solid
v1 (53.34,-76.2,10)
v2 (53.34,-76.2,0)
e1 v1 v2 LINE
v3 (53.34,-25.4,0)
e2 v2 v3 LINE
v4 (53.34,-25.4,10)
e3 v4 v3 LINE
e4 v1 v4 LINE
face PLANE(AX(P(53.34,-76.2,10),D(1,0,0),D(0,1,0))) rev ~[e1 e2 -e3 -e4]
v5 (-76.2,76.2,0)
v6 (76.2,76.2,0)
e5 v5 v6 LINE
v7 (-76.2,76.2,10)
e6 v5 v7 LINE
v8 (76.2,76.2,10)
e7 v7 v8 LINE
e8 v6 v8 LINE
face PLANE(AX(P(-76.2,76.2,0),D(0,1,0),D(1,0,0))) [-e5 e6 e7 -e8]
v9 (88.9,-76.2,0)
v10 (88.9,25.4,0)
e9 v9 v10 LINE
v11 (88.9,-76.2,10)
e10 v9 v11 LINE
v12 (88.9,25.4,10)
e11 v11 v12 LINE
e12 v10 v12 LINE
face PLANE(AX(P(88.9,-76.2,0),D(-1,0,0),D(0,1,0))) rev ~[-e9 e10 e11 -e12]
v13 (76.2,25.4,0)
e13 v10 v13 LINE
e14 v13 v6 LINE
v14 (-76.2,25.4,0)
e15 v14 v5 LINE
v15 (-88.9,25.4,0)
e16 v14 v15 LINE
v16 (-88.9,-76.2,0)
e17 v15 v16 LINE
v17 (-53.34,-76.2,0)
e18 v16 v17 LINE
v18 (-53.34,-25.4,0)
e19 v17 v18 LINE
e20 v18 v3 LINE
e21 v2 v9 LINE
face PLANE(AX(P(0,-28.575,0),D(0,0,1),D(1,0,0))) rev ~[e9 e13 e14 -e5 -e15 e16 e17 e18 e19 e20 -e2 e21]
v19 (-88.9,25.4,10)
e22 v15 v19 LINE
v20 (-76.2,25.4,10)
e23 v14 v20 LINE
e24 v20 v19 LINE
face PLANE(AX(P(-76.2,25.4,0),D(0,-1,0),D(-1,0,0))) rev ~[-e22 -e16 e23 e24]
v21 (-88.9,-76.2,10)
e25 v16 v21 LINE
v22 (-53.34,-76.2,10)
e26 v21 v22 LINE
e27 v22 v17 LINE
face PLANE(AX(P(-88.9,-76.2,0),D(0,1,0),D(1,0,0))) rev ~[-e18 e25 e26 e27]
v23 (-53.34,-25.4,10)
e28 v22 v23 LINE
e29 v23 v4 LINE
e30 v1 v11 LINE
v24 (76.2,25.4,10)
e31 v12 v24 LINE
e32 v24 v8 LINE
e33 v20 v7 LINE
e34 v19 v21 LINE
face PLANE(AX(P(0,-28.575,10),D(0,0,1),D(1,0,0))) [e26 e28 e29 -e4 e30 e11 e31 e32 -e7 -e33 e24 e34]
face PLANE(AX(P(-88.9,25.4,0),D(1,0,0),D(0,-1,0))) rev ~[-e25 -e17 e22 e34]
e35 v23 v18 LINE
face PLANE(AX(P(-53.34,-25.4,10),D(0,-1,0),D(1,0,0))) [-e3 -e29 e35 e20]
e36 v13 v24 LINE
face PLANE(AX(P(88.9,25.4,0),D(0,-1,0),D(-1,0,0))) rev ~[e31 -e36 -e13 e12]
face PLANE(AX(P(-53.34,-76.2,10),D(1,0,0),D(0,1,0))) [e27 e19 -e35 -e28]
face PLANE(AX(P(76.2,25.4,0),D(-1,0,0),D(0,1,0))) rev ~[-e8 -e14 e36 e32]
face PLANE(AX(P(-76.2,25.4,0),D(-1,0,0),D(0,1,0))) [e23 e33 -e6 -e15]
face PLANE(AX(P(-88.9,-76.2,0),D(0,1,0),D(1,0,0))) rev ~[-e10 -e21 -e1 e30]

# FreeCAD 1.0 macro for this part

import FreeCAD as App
import Part
import Sketcher

V = App.Vector
Q = App.Units.Quantity

doc = App.newDocument("Part")
body = doc.addObject("PartDesign::Body", "Body")

# Sketch on XY plane
sketch1 = body.newObject("Sketcher::SketchObject", "Sketch")
sketch1.AttachmentSupport = (doc.getObject("XY_Plane"), [""])
sketch1.MapMode = "FlatFace"
sketch1.addGeometry([
    Part.LineSegment(V(89, -76, 0), V(89, 25, 0)),  # 0
    Part.LineSegment(V(89, 25, 0), V(76, 25, 0)),  # 1
    Part.LineSegment(V(76, 25, 0), V(76, 76, 0)),  # 2
    Part.LineSegment(V(76, 76, 0), V(-76, 76, 0)),  # 3
    Part.LineSegment(V(-76, 76, 0), V(-76, 25, 0)),  # 4
    Part.LineSegment(V(-76, 25, 0), V(-89, 25, 0)),  # 5
    Part.LineSegment(V(-89, 25, 0), V(-89, -76, 0)),  # 6
    Part.LineSegment(V(-89, -76, 0), V(89, -76, 0)),  # 7
], False)
sketch1.addConstraint([
    Sketcher.Constraint("Coincident", 0, 2, 1, 1),
    Sketcher.Constraint("Coincident", 1, 2, 2, 1),
    Sketcher.Constraint("Coincident", 2, 2, 3, 1),
    Sketcher.Constraint("Coincident", 3, 2, 4, 1),
    Sketcher.Constraint("Coincident", 4, 2, 5, 1),
    Sketcher.Constraint("Coincident", 5, 2, 6, 1),
    Sketcher.Constraint("Coincident", 6, 2, 7, 1),
    Sketcher.Constraint("Coincident", 7, 2, 0, 1),
    Sketcher.Constraint("Vertical", 0),
    Sketcher.Constraint("Horizontal", 1),
    Sketcher.Constraint("Vertical", 2),
    Sketcher.Constraint("Horizontal", 3),
    Sketcher.Constraint("Vertical", 4),
    Sketcher.Constraint("Horizontal", 5),
    Sketcher.Constraint("Vertical", 6),
    Sketcher.Constraint("Horizontal", 7),
    Sketcher.Constraint("Symmetric", 1, 2, 4, 2, -2),
    Sketcher.Constraint("Equal", 1, 5),
    Sketcher.Constraint("DistanceX", 3, 2, 3, 1, Q("6 in")),
    Sketcher.Constraint("DistanceX", 7, 1, 7, 2, Q("7 in")),
    Sketcher.Constraint("DistanceY", 0, 1, 0, 2, Q("4 in")),
    Sketcher.Constraint("DistanceY", 2, 1, 2, 2, Q("2 in")),
    Sketcher.Constraint("DistanceY", -1, 1, 0, 2, Q("1 in")),
])
pad1 = body.newObject("PartDesign::Pad", "Pad")
pad1.Profile = sketch1
pad1.Length = 10

# Sketch on XY plane
sketch2 = body.newObject("Sketcher::SketchObject", "Sketch001")
sketch2.AttachmentSupport = (doc.getObject("XY_Plane"), [""])
sketch2.MapMode = "FlatFace"
sketch2.AttachmentOffset = App.Placement(V(0, 0, 10), App.Rotation())
sketch2.addGeometry([
    Part.LineSegment(V(-53, -25, 0), V(-53, -76, 0)),
    Part.LineSegment(V(-53, -76, 0), V(53, -76, 0)),
    Part.LineSegment(V(53, -76, 0), V(53, -25, 0)),
    Part.LineSegment(V(53, -25, 0), V(-53, -25, 0)),
], False)
sketch2.addConstraint([
    Sketcher.Constraint("Coincident", 0, 2, 1, 1),
    Sketcher.Constraint("Coincident", 1, 2, 2, 1),
    Sketcher.Constraint("Coincident", 2, 2, 3, 1),
    Sketcher.Constraint("Coincident", 3, 2, 0, 1),
    Sketcher.Constraint("Vertical", 0),
    Sketcher.Constraint("Horizontal", 1),
    Sketcher.Constraint("Vertical", 2),
    Sketcher.Constraint("Horizontal", 3),
    Sketcher.Constraint("DistanceY", 0, 2, 0, 1, Q("2 in")),
    Sketcher.Constraint("DistanceX", 1, 1, 1, 2, Q("4.2 in")),
    Sketcher.Constraint("DistanceY", 0, 2, -1, 1, Q("3 in")),
    Sketcher.Constraint("DistanceX", 0, 2, -1, 1, Q("2.1 in")),
])
pocket1 = body.newObject("PartDesign::Pocket", "Pocket")
pocket1.Profile = sketch2
pocket1.Length = Q("1 in")

doc.recompute()
